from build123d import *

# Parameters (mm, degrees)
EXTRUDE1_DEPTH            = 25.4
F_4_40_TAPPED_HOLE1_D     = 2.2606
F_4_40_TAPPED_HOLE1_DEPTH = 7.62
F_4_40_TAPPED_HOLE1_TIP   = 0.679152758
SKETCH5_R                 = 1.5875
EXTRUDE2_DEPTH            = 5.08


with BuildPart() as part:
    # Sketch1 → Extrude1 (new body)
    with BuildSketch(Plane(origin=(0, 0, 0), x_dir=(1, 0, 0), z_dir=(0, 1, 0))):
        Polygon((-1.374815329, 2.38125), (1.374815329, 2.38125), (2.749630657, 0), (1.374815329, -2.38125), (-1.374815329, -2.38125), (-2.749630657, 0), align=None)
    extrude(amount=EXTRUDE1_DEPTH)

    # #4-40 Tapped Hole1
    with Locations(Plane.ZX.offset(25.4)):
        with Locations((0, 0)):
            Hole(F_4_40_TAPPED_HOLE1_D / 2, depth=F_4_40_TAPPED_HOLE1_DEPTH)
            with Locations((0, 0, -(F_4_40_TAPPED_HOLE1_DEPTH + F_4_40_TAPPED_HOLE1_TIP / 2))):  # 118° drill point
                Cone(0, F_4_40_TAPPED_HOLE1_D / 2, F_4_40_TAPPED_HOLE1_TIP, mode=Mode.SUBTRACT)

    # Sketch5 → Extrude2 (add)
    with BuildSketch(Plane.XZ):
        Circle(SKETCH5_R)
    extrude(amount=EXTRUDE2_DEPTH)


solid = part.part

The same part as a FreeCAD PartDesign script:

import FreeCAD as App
import Part
import Sketcher
from FreeCAD import Vector
Q = App.Units.Quantity


def add_polygon(sketch, points):
    """Adds a closed chain of lines whose ends are joined by coincident constraints."""
    first, n = sketch.GeometryCount, len(points)
    for a, b in zip(points, points[1:] + points[:1]):
        sketch.addGeometry(Part.LineSegment(App.Vector(*a, 0), App.Vector(*b, 0)), False)
    for i in range(n):
        sketch.addConstraint(Sketcher.Constraint("Coincident", first + i, 2, first + (i + 1) % n, 1))

doc = App.newDocument("Part")
params = doc.addObject("Spreadsheet::Sheet", "Params")
for row, (alias, value) in enumerate([
    ("pad1_length", "1 in"),
    ("sketch2_diameter", "0.089 in"),
    ("hole_diameter", "0.089 in"),
    ("hole_depth", "0.3 in"),
    ("sketch3_diameter", "0.125 in"),
    ("pad2_length", "0.2 in"),
], start=1):
    params.set(f"A{row}", alias)
    params.set(f"B{row}", "=" + value)
    params.setAlias(f"B{row}", alias)

body = doc.addObject("PartDesign::Body", "Body")

# Sketch on XZ plane
sketch1 = body.newObject("Sketcher::SketchObject", "Sketch")
sketch1.AttachmentSupport = (doc.getObject("XZ_Plane"), [""])
sketch1.MapMode = "FlatFace"
add_polygon(sketch1, [(1.4, -2.4), (-1.4, -2.4), (-2.7, 0), (-1.4, 2.4), (1.4, 2.4), (2.7, 0)])  # lines 0-5
sketch1.addConstraint(Sketcher.Constraint("Horizontal", 0))
sketch1.addConstraint(Sketcher.Constraint("Horizontal", 3))
sketch1.addConstraint(Sketcher.Constraint("Symmetric", 0, 2, 3, 2, -1, 1))
sketch1.addConstraint(Sketcher.Constraint("Symmetric", 1, 2, 4, 2, -1, 1))
sketch1.addConstraint(Sketcher.Constraint("PointOnObject", 1, 2, -1))
sketch1.addConstraint(Sketcher.Constraint("Parallel", 2, 5))
sketch1.addConstraint(Sketcher.Constraint("Vertical", 0, 2, 2, 2))
sketch1.addConstraint(Sketcher.Constraint("Angle", 1, Q("120 deg")))
sketch1.addConstraint(Sketcher.Constraint("DistanceY", 0, 2, -1, 1, Q("0.09375 in")))
sketch1.addConstraint(Sketcher.Constraint("DistanceX", 0, 2, 0, 1, Q("2.749631 mm")))
pad1 = body.newObject("PartDesign::Pad", "Pad")
pad1.Profile = sketch1
pad1.setExpression("Length", "Params.pad1_length")
pad1.Reversed = True

# Sketch on XZ plane
sketch2 = body.newObject("Sketcher::SketchObject", "Sketch001")
sketch2.AttachmentSupport = (doc.getObject("XZ_Plane"), [""])
sketch2.MapMode = "FlatFace"
sketch2.AttachmentOffset = App.Placement(Vector(0, 0, -1 * 25.4), App.Rotation())
sketch2.addGeometry(Part.Circle(Vector(0, 0, 0), Vector(0, 0, 1), 1.1), False)
sketch2.addConstraint(Sketcher.Constraint("Coincident", 0, 3, -1, 1))
sketch2.addConstraint(Sketcher.Constraint("Diameter", 0, Q("0.089 in")))
sketch2.setExpression("Constraints[1]", "Params.sketch2_diameter")
doc.recompute()
hole = body.newObject("PartDesign::Hole", "Hole")
hole.Profile = sketch2
hole.ThreadType = "None"
hole.setExpression("Diameter", "Params.hole_diameter")
hole.DepthType = "Dimension"
hole.setExpression("Depth", "Params.hole_depth")
hole.DrillPoint = "Angled"
hole.DrillPointAngle = 118
hole.Reversed = True

# Sketch on XZ plane
sketch3 = body.newObject("Sketcher::SketchObject", "Sketch002")
sketch3.AttachmentSupport = (doc.getObject("XZ_Plane"), [""])
sketch3.MapMode = "FlatFace"
sketch3.addGeometry(Part.Circle(Vector(0, 0, 0), Vector(0, 0, 1), 1.6), False)
sketch3.addConstraint(Sketcher.Constraint("Coincident", 0, 3, -1, 1))
sketch3.addConstraint(Sketcher.Constraint("Diameter", 0, Q("0.125 in")))
sketch3.setExpression("Constraints[1]", "Params.sketch3_diameter")
pad2 = body.newObject("PartDesign::Pad", "Pad001")
pad2.Profile = sketch3
pad2.setExpression("Length", "Params.pad2_length")

doc.recompute()
